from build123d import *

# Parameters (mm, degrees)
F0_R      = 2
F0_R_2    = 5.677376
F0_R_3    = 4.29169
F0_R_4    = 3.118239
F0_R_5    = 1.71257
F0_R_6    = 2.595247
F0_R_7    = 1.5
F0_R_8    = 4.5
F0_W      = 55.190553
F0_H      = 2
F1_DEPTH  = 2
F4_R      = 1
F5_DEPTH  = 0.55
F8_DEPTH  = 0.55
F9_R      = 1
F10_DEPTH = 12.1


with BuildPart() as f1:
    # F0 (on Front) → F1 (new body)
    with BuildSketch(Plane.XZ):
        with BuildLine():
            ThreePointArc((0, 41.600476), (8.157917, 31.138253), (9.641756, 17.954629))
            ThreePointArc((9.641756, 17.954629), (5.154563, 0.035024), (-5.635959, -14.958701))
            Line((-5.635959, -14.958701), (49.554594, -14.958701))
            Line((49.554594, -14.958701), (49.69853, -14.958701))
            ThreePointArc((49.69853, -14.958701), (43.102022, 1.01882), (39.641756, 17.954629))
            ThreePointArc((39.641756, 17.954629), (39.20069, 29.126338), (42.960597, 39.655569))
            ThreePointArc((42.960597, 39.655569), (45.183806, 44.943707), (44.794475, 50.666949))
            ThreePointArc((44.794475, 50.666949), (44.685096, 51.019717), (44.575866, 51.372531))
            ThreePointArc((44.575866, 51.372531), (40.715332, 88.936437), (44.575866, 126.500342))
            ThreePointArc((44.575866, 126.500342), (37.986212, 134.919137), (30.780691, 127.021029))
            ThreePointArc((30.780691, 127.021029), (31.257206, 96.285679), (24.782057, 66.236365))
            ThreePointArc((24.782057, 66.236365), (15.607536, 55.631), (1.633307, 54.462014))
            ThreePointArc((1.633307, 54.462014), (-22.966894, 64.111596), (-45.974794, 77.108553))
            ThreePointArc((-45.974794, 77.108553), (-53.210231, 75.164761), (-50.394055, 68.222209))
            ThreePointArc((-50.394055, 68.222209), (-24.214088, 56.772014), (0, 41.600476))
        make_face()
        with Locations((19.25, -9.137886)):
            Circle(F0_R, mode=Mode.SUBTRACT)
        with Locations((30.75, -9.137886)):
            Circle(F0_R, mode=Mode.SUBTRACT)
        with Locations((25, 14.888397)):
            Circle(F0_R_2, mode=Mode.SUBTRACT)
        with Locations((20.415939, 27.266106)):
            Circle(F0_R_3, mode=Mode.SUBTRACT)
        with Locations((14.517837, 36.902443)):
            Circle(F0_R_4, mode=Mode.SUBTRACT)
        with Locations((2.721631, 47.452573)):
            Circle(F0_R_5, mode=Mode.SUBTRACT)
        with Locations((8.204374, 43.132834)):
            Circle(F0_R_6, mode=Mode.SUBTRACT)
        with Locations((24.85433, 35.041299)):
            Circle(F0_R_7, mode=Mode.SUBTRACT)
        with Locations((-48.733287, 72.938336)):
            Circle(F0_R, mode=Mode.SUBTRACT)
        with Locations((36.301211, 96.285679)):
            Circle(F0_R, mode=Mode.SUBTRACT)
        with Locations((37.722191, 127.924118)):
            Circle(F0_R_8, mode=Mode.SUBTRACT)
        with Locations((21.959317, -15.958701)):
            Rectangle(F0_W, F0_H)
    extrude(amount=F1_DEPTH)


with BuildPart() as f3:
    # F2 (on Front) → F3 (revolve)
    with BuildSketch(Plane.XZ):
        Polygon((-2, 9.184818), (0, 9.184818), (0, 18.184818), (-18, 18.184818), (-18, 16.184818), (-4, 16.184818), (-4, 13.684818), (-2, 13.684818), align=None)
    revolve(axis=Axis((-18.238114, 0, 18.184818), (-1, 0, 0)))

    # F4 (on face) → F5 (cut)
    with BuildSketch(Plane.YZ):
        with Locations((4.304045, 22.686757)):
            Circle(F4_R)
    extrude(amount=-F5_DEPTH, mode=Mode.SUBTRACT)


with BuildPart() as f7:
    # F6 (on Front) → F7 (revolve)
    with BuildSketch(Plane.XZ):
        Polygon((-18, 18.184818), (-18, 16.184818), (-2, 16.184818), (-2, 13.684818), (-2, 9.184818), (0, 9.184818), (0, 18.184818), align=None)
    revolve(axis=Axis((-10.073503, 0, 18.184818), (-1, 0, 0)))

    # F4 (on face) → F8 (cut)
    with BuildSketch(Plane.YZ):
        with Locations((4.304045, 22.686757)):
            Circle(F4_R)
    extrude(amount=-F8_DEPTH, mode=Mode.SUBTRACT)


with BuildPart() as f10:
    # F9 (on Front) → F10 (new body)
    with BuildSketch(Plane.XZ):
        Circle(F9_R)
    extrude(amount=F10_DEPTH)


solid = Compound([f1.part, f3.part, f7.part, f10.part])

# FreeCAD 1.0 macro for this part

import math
import FreeCAD as App
import Part
import Sketcher
from FreeCAD import Vector

doc = App.newDocument("Part")
params = doc.addObject("Spreadsheet::Sheet", "Params")
for row, (alias, value) in enumerate([
    ("sketch1_diameter", "4 mm"),
    ("sketch1_diameter2", "4 mm"),
    ("sketch1_diameter3", "3 mm"),
    ("sketch1_diameter4", "4 mm"),
    ("sketch1_diameter5", "4 mm"),
    ("pad1_length", "2 mm"),
    ("sketch2_width", "2 mm"),
    ("sketch2_width2", "18 mm"),
    ("sketch2_height", "9 mm"),
    ("sketch2_height2", "2.5 mm"),
    ("revolution_angle", "360 deg"),
    ("sketch3_diameter", "2 mm"),
    ("pocket1_length", "0.55 mm"),
    ("sketch4_width", "16 mm"),
    ("sketch4_width2", "2 mm"),
    ("sketch4_height", "7 mm"),
    ("revolution2_angle", "360 deg"),
    ("sketch5_diameter", "2 mm"),
    ("pocket2_length", "0.55 mm"),
    ("sketch6_diameter", "2 mm"),
    ("pad2_length", "12.1 mm"),
], start=1):
    params.set(f"A{row}", alias)
    params.set(f"B{row}", "=" + value)
    params.setAlias(f"B{row}", alias)

body = doc.addObject("PartDesign::Body", "Body")

sketch1 = body.newObject("Sketcher::SketchObject", "Sketch")
sketch1.AttachmentSupport = (doc.getObject("XZ_Plane"), [""])
sketch1.MapMode = "FlatFace"
sketch1.addGeometry(Part.ArcOfCircle(Part.Circle(Vector(-14.454547, 21.917866, 0), Vector(0, 0, 1), 24.420055), math.radians(-9.340094), math.radians(53.707124)), False)
sketch1.addGeometry(Part.ArcOfCircle(Part.Circle(Vector(-39.386158, 20.709943, 0), Vector(0, 0, 1), 49.105276), math.radians(-46.583012), math.radians(-3.216575)), False)
sketch1.addGeometry(Part.LineSegment(Vector(-5.63596, -14.958701, 0), Vector(-5.635959, -14.958701, 0)), False)
sketch1.addGeometry(Part.LineSegment(Vector(-5.63596, -14.958701, 0), Vector(-5.63596, -16.958701, 0)), False)
sketch1.addGeometry(Part.LineSegment(Vector(-5.63596, -16.958701, 0), Vector(49.554594, -16.958701, 0)), False)
sketch1.addGeometry(Part.LineSegment(Vector(49.554594, -16.958701, 0), Vector(49.554594, -14.958701, 0)), False)
sketch1.addGeometry(Part.LineSegment(Vector(49.554594, -14.958701, 0), Vector(49.69853, -14.958701, 0)), False)
sketch1.addGeometry(Part.ArcOfCircle(Part.Circle(Vector(130.238425, 27.643628, 0), Vector(0, 0, 1), 91.113298), math.radians(-173.895618), math.radians(-152.12298)), False)
sketch1.addGeometry(Part.ArcOfCircle(Part.Circle(Vector(68.276035, 24.679689, 0), Vector(0, 0, 1), 29.413405), math.radians(149.392671), math.radians(193.216975)), False)
sketch1.addGeometry(Part.ArcOfCircle(Part.Circle(Vector(32.927932, 46.984849, 0), Vector(0, 0, 1), 12.424681), math.radians(-36.149684), math.radians(17.23873)), False)
sketch1.addGeometry(Part.ArcOfCircle(Part.Circle(Vector(880.257704, 309.903436, 0), Vector(0, 0, 1), 874.758459), math.radians(-162.809751), math.radians(-162.761368)), False)
sketch1.addGeometry(Part.ArcOfCircle(Part.Circle(Vector(225.398425, 88.936436, 0), Vector(0, 0, 1), 184.683093), math.radians(168.264349), math.radians(191.735651)), False)
sketch1.addGeometry(Part.ArcOfCircle(Part.Circle(Vector(37.722191, 127.924118, 0), Vector(0, 0, 1), 7), math.radians(-11.735654), math.radians(187.412546)), False)
sketch1.addGeometry(Part.ArcOfCircle(Part.Circle(Vector(-103.354487, 109.570054, 0), Vector(0, 0, 1), 135.265599), math.radians(-18.684698), math.radians(7.412542)), False)
sketch1.addGeometry(Part.ArcOfCircle(Part.Circle(Vector(7.186579, 72.18687, 0), Vector(0, 0, 1), 18.574428), math.radians(-107.395993), math.radians(-18.684703)), False)
sketch1.addGeometry(Part.ArcOfCircle(Part.Circle(Vector(57.953889, 234.225221, 0), Vector(0, 0, 1), 188.379453), math.radians(-123.483623), math.radians(-107.395997)), False)
sketch1.addGeometry(Part.ArcOfCircle(Part.Circle(Vector(-48.733287, 72.938335, 0), Vector(0, 0, 1), 5), math.radians(56.516377), math.radians(250.600457)), False)
sketch1.addGeometry(Part.ArcOfCircle(Part.Circle(Vector(-114.832767, -114.76613, 0), Vector(0, 0, 1), 194.002783), math.radians(53.707123), math.radians(70.600461)), False)
sketch1.addGeometry(Part.Circle(Vector(19.25, -9.137886, 0), Vector(0, 0, 1), 2), False)
sketch1.addGeometry(Part.Circle(Vector(30.75, -9.137886, 0), Vector(0, 0, 1), 2), False)
sketch1.addGeometry(Part.Circle(Vector(25, 14.888397, 0), Vector(0, 0, 1), 5.677376), False)
sketch1.addGeometry(Part.Circle(Vector(14.517837, 36.902443, 0), Vector(0, 0, 1), 3.118239), False)
sketch1.addGeometry(Part.Circle(Vector(2.721631, 47.452573, 0), Vector(0, 0, 1), 1.71257), False)
sketch1.addGeometry(Part.Circle(Vector(8.204374, 43.132834, 0), Vector(0, 0, 1), 2.595247), False)
sketch1.addGeometry(Part.Circle(Vector(20.415939, 27.266106, 0), Vector(0, 0, 1), 4.29169), False)
sketch1.addGeometry(Part.Circle(Vector(24.85433, 35.041299, 0), Vector(0, 0, 1), 1.5), False)
sketch1.addGeometry(Part.Circle(Vector(-48.733287, 72.938336, 0), Vector(0, 0, 1), 2), False)
sketch1.addGeometry(Part.Circle(Vector(36.301211, 96.285679, 0), Vector(0, 0, 1), 2), False)
sketch1.addGeometry(Part.Circle(Vector(37.722191, 127.924118, 0), Vector(0, 0, 1), 4.5), False)
sketch1.addConstraint(Sketcher.Constraint("Coincident", 0, 1, 1, 2))
sketch1.addConstraint(Sketcher.Constraint("Coincident", 1, 1, 2, 1))
sketch1.addConstraint(Sketcher.Constraint("Coincident", 2, 2, 3, 1))
sketch1.addConstraint(Sketcher.Constraint("Coincident", 3, 2, 4, 1))
sketch1.addConstraint(Sketcher.Constraint("Coincident", 4, 2, 5, 1))
sketch1.addConstraint(Sketcher.Constraint("Coincident", 5, 2, 6, 1))
sketch1.addConstraint(Sketcher.Constraint("Coincident", 6, 2, 7, 2))
sketch1.addConstraint(Sketcher.Constraint("Coincident", 7, 1, 8, 2))
sketch1.addConstraint(Sketcher.Constraint("Coincident", 8, 1, 9, 1))
sketch1.addConstraint(Sketcher.Constraint("Coincident", 9, 2, 10, 2))
sketch1.addConstraint(Sketcher.Constraint("Coincident", 10, 1, 11, 2))
sketch1.addConstraint(Sketcher.Constraint("Coincident", 11, 1, 12, 1))
sketch1.addConstraint(Sketcher.Constraint("Coincident", 12, 2, 13, 2))
sketch1.addConstraint(Sketcher.Constraint("Coincident", 13, 1, 14, 2))
sketch1.addConstraint(Sketcher.Constraint("Coincident", 14, 1, 15, 2))
sketch1.addConstraint(Sketcher.Constraint("Coincident", 15, 1, 16, 1))
sketch1.addConstraint(Sketcher.Constraint("Coincident", 16, 2, 17, 2))
sketch1.addConstraint(Sketcher.Constraint("Coincident", 17, 1, 0, 2))
sketch1.addConstraint(Sketcher.Constraint("Horizontal", 2))
sketch1.addConstraint(Sketcher.Constraint("Vertical", 3))
sketch1.addConstraint(Sketcher.Constraint("Horizontal", 4))
sketch1.addConstraint(Sketcher.Constraint("Vertical", 5))
sketch1.addConstraint(Sketcher.Constraint("Horizontal", 6))
sketch1.addConstraint(Sketcher.Constraint("Coincident", 26, 3, 16, 3))
sketch1.addConstraint(Sketcher.Constraint("Coincident", 28, 3, 12, 3))
sketch1.addConstraint(Sketcher.Constraint("PointOnObject", 17, 1, -2))
sketch1.addConstraint(Sketcher.Constraint("Diameter", 18, 4.0))
sketch1.addConstraint(Sketcher.Constraint("Diameter", 19, 4.0))
sketch1.addConstraint(Sketcher.Constraint("Diameter", 25, 3.0))
sketch1.addConstraint(Sketcher.Constraint("Diameter", 26, 4.0))
sketch1.addConstraint(Sketcher.Constraint("Diameter", 27, 4.0))
sketch1.addConstraint(Sketcher.Constraint("Diameter", 28, 9.0))
sketch1.addConstraint(Sketcher.Constraint("Radius", 12, 7.0))
sketch1.addConstraint(Sketcher.Constraint("Radius", 16, 5.0))
sketch1.addConstraint(Sketcher.Constraint("DistanceY", 3, 2, 3, 1, 2.0))
sketch1.addConstraint(Sketcher.Constraint("DistanceY", 5, 1, 5, 2, 2.0))
sketch1.addConstraint(Sketcher.Constraint("DistanceX", -1, 1, 20, 3, 25.0))
sketch1.addConstraint(Sketcher.Constraint("Radius", 7, 91.113298))
sketch1.addConstraint(Sketcher.Constraint("Radius", 13, 135.265599))
sketch1.addConstraint(Sketcher.Constraint("DistanceX", 18, 3, 19, 3, 11.5))
sketch1.addConstraint(Sketcher.Constraint("Diameter", 22, 3.42514))
sketch1.addConstraint(Sketcher.Constraint("Diameter", 24, 8.58338))
sketch1.addConstraint(Sketcher.Constraint("DistanceX", -1, 1, 18, 3, 19.25))
sketch1.addConstraint(Sketcher.Constraint("Radius", 9, 12.424681))
sketch1.addConstraint(Sketcher.Constraint("Radius", 10, 874.758459))
sketch1.addConstraint(Sketcher.Constraint("DistanceX", 7, 3, 11, 3, 95.16))
sketch1.addConstraint(Sketcher.Constraint("Diameter", 20, 11.354752))
sketch1.addConstraint(Sketcher.Constraint("Diameter", 21, 6.236478))
sketch1.addConstraint(Sketcher.Constraint("Diameter", 23, 5.190494))
sketch1.addConstraint(Sketcher.Constraint("Radius", 0, 24.420055))
sketch1.addConstraint(Sketcher.Constraint("Radius", 1, 49.105276))
sketch1.addConstraint(Sketcher.Constraint("Radius", 8, 29.413405))
sketch1.addConstraint(Sketcher.Constraint("Radius", 11, 184.683093))
sketch1.addConstraint(Sketcher.Constraint("Radius", 14, 18.574428))
sketch1.addConstraint(Sketcher.Constraint("Radius", 15, 188.379453))
sketch1.addConstraint(Sketcher.Constraint("Radius", 17, 194.002783))
sketch1.addConstraint(Sketcher.Constraint("DistanceY", 17, 3, 14, 3, 186.953001))
sketch1.addConstraint(Sketcher.Constraint("DistanceY", -1, 1, 25, 3, 35.041299))
sketch1.addConstraint(Sketcher.Constraint("DistanceY", 1, 1, -1, 1, 14.958701))
sketch1.addConstraint(Sketcher.Constraint("DistanceX", 13, 3, 16, 3, 54.6212))
sketch1.addConstraint(Sketcher.Constraint("DistanceX", 17, 3, 9, 3, 147.760699))
sketch1.addConstraint(Sketcher.Constraint("DistanceX", 22, 3, 9, 3, 30.206301))
sketch1.addConstraint(Sketcher.Constraint("DistanceY", 4, 2, 20, 3, 31.847098))
sketch1.addConstraint(Sketcher.Constraint("DistanceY", 9, 3, 9, 2, 3.6821))
sketch1.addConstraint(Sketcher.Constraint("DistanceX", 12, 2, 28, 3, 6.9415))
sketch1.addConstraint(Sketcher.Constraint("DistanceX", 15, 1, 14, 1, 47.608101))
sketch1.addConstraint(Sketcher.Constraint("DistanceX", 4, 1, 4, 2, 55.190553))
sketch1.addConstraint(Sketcher.Constraint("DistanceX", 6, 1, 6, 2, 0.143936))
sketch1.addConstraint(Sketcher.Constraint("DistanceY", -1, 1, 7, 3, 27.643628))
sketch1.addConstraint(Sketcher.Constraint("DistanceY", -1, 1, 8, 3, 24.679689))
sketch1.addConstraint(Sketcher.Constraint("DistanceY", -1, 1, 9, 3, 46.984849))
sketch1.addConstraint(Sketcher.Constraint("DistanceX", -1, 1, 12, 3, 37.722191))
sketch1.addConstraint(Sketcher.Constraint("DistanceY", -1, 1, 12, 3, 127.924118))
sketch1.addConstraint(Sketcher.Constraint("DistanceX", -1, 1, 14, 3, 7.186579))
sketch1.addConstraint(Sketcher.Constraint("DistanceY", -1, 1, 14, 3, 72.18687))
sketch1.addConstraint(Sketcher.Constraint("DistanceX", -1, 1, 15, 3, 57.953889))
sketch1.addConstraint(Sketcher.Constraint("DistanceX", -1, 1, 24, 3, 20.415939))
sketch1.addConstraint(Sketcher.Constraint("DistanceX", -1, 1, 25, 3, 24.85433))
sketch1.addConstraint(Sketcher.Constraint("DistanceX", -1, 1, 27, 3, 36.301211))
sketch1.addConstraint(Sketcher.Constraint("DistanceY", -1, 1, 27, 3, 96.285679))
sketch1.addConstraint(Sketcher.Constraint("DistanceY", -1, 1, 0, 1, 17.954629))
sketch1.addConstraint(Sketcher.Constraint("DistanceX", 1, 1, -1, 1, 5.635959))
sketch1.addConstraint(Sketcher.Constraint("DistanceX", 2, 2, -1, 1, 5.635959))
sketch1.addConstraint(Sketcher.Constraint("DistanceY", -1, 1, 7, 1, 17.954629))
sketch1.addConstraint(Sketcher.Constraint("DistanceY", -1, 1, 16, 2, 68.222209))
sketch1.addConstraint(Sketcher.Constraint("DistanceX", 1, 3, 0, 3, 24.931611))
sketch1.addConstraint(Sketcher.Constraint("DistanceX", 7, 3, 10, 3, 750.019279))
sketch1.addConstraint(Sketcher.Constraint("DistanceY", 18, 3, 0, 3, 31.055752))
sketch1.addConstraint(Sketcher.Constraint("DistanceY", 19, 3, 0, 3, 31.055752))
sketch1.addConstraint(Sketcher.Constraint("DistanceX", 14, 3, 21, 3, 7.331258))
sketch1.addConstraint(Sketcher.Constraint("DistanceY", 18, 3, 21, 3, 46.040329))
sketch1.addConstraint(Sketcher.Constraint("DistanceY", 21, 3, 22, 3, 10.55013))
sketch1.addConstraint(Sketcher.Constraint("DistanceY", 23, 3, 22, 3, 4.319739))
sketch1.addConstraint(Sketcher.Constraint("DistanceX", 23, 3, 9, 3, 24.723558))
sketch1.addConstraint(Sketcher.Constraint("DistanceY", 20, 3, 24, 3, 12.377709))
sketch1.addConstraint(Sketcher.Constraint("DistanceY", 14, 3, 11, 1, 54.313472))
sketch1.addConstraint(Sketcher.Constraint("DistanceX", 14, 3, 13, 1, 17.595478))
sketch1.addConstraint(Sketcher.Constraint("DistanceY", 22, 3, 14, 1, 7.009441))
sketch1.setExpression("Constraints[26]", "Params.sketch1_diameter")
sketch1.setExpression("Constraints[27]", "Params.sketch1_diameter2")
sketch1.setExpression("Constraints[28]", "Params.sketch1_diameter3")
sketch1.setExpression("Constraints[29]", "Params.sketch1_diameter4")
sketch1.setExpression("Constraints[30]", "Params.sketch1_diameter5")
pad1 = body.newObject("PartDesign::Pad", "Pad")
pad1.Profile = sketch1
pad1.setExpression("Length", "Params.pad1_length")
body2 = doc.addObject("PartDesign::Body", "Body001")

sketch2 = body2.newObject("Sketcher::SketchObject", "Sketch001")
sketch2.AttachmentSupport = (doc.getObject("XZ_Plane001"), [""])
sketch2.MapMode = "FlatFace"
sketch2.addGeometry(Part.LineSegment(Vector(-2, 9.2, 0), Vector(0, 9.2, 0)), False)
sketch2.addGeometry(Part.LineSegment(Vector(0, 9.2, 0), Vector(0, 18.2, 0)), False)
sketch2.addGeometry(Part.LineSegment(Vector(0, 18.2, 0), Vector(-18, 18.2, 0)), False)
sketch2.addGeometry(Part.LineSegment(Vector(-18, 18.2, 0), Vector(-18, 16.2, 0)), False)
sketch2.addGeometry(Part.LineSegment(Vector(-18, 16.2, 0), Vector(-4, 16.2, 0)), False)
sketch2.addGeometry(Part.LineSegment(Vector(-4, 16.2, 0), Vector(-4, 13.7, 0)), False)
sketch2.addGeometry(Part.LineSegment(Vector(-4, 13.7, 0), Vector(-2, 13.7, 0)), False)
sketch2.addGeometry(Part.LineSegment(Vector(-2, 13.7, 0), Vector(-2, 9.2, 0)), False)
sketch2.addGeometry(Part.LineSegment(Vector(0, 18.2, 0), Vector(-18, 18.2, 0)), True)
sketch2.addConstraint(Sketcher.Constraint("Coincident", 0, 2, 1, 1))
sketch2.addConstraint(Sketcher.Constraint("Coincident", 1, 2, 2, 1))
sketch2.addConstraint(Sketcher.Constraint("Coincident", 2, 2, 3, 1))
sketch2.addConstraint(Sketcher.Constraint("Coincident", 3, 2, 4, 1))
sketch2.addConstraint(Sketcher.Constraint("Coincident", 4, 2, 5, 1))
sketch2.addConstraint(Sketcher.Constraint("Coincident", 5, 2, 6, 1))
sketch2.addConstraint(Sketcher.Constraint("Coincident", 6, 2, 7, 1))
sketch2.addConstraint(Sketcher.Constraint("Coincident", 7, 2, 0, 1))
sketch2.addConstraint(Sketcher.Constraint("Horizontal", 0))
sketch2.addConstraint(Sketcher.Constraint("Vertical", 1))
sketch2.addConstraint(Sketcher.Constraint("Horizontal", 2))
sketch2.addConstraint(Sketcher.Constraint("Vertical", 3))
sketch2.addConstraint(Sketcher.Constraint("Horizontal", 4))
sketch2.addConstraint(Sketcher.Constraint("Vertical", 5))
sketch2.addConstraint(Sketcher.Constraint("Horizontal", 6))
sketch2.addConstraint(Sketcher.Constraint("Vertical", 7))
sketch2.addConstraint(Sketcher.Constraint("Horizontal", 8))
sketch2.addConstraint(Sketcher.Constraint("Coincident", 8, 1, 1, 2))
sketch2.addConstraint(Sketcher.Constraint("PointOnObject", 0, 2, -2))
sketch2.addConstraint(Sketcher.Constraint("Vertical", 3, 2, 8, 2))
sketch2.addConstraint(Sketcher.Constraint("Equal", 0, 6))
sketch2.addConstraint(Sketcher.Constraint("Equal", 6, 3))
sketch2.addConstraint(Sketcher.Constraint("DistanceX", 0, 1, 0, 2, 2.0))
sketch2.addConstraint(Sketcher.Constraint("DistanceX", 2, 2, 2, 1, 18.0))
sketch2.addConstraint(Sketcher.Constraint("DistanceY", 1, 1, 1, 2, 9.0))
sketch2.addConstraint(Sketcher.Constraint("DistanceY", 5, 2, 5, 1, 2.5))
sketch2.addConstraint(Sketcher.Constraint("DistanceY", -1, 1, 1, 2, 18.184818))
sketch2.setExpression("Constraints[22]", "Params.sketch2_width")
sketch2.setExpression("Constraints[23]", "Params.sketch2_width2")
sketch2.setExpression("Constraints[24]", "Params.sketch2_height")
sketch2.setExpression("Constraints[25]", "Params.sketch2_height2")
revolution = body2.newObject("PartDesign::Revolution", "Revolution")
revolution.Profile = sketch2
revolution.ReferenceAxis = (sketch2, ["Axis0"])
revolution.setExpression("Angle", "Params.revolution_angle")

sketch3 = body2.newObject("Sketcher::SketchObject", "Sketch002")
sketch3.AttachmentSupport = (doc.getObject("YZ_Plane001"), [""])
sketch3.MapMode = "FlatFace"
sketch3.addGeometry(Part.Circle(Vector(4.3, 22.7, 0), Vector(0, 0, 1), 1), False)
sketch3.addConstraint(Sketcher.Constraint("Diameter", 0, 2.0))
sketch3.addConstraint(Sketcher.Constraint("DistanceX", -1, 1, 0, 3, 4.304045))
sketch3.addConstraint(Sketcher.Constraint("DistanceY", -1, 1, 0, 3, 22.686757))
sketch3.setExpression("Constraints[0]", "Params.sketch3_diameter")
pocket1 = body2.newObject("PartDesign::Pocket", "Pocket")
pocket1.Profile = sketch3
pocket1.setExpression("Length", "Params.pocket1_length")
body3 = doc.addObject("PartDesign::Body", "Body002")

sketch4 = body3.newObject("Sketcher::SketchObject", "Sketch003")
sketch4.AttachmentSupport = (doc.getObject("XZ_Plane002"), [""])
sketch4.MapMode = "FlatFace"
sketch4.addGeometry(Part.LineSegment(Vector(-18, 18.2, 0), Vector(-18, 16.2, 0)), False)
sketch4.addGeometry(Part.LineSegment(Vector(-18, 16.2, 0), Vector(-2, 16.2, 0)), False)
sketch4.addGeometry(Part.LineSegment(Vector(-2, 16.2, 0), Vector(-2, 9.2, 0)), False)
sketch4.addGeometry(Part.LineSegment(Vector(-2, 9.2, 0), Vector(0, 9.2, 0)), False)
sketch4.addGeometry(Part.LineSegment(Vector(0, 9.2, 0), Vector(0, 18.2, 0)), False)
sketch4.addGeometry(Part.LineSegment(Vector(0, 18.2, 0), Vector(-18, 18.2, 0)), False)
sketch4.addGeometry(Part.LineSegment(Vector(0, 18.2, 0), Vector(-18, 18.2, 0)), True)
sketch4.addConstraint(Sketcher.Constraint("Coincident", 0, 2, 1, 1))
sketch4.addConstraint(Sketcher.Constraint("Coincident", 1, 2, 2, 1))
sketch4.addConstraint(Sketcher.Constraint("Coincident", 2, 2, 3, 1))
sketch4.addConstraint(Sketcher.Constraint("Coincident", 3, 2, 4, 1))
sketch4.addConstraint(Sketcher.Constraint("Coincident", 4, 2, 5, 1))
sketch4.addConstraint(Sketcher.Constraint("Coincident", 5, 2, 0, 1))
sketch4.addConstraint(Sketcher.Constraint("Vertical", 0))
sketch4.addConstraint(Sketcher.Constraint("Horizontal", 1))
sketch4.addConstraint(Sketcher.Constraint("Vertical", 2))
sketch4.addConstraint(Sketcher.Constraint("Horizontal", 3))
sketch4.addConstraint(Sketcher.Constraint("Vertical", 4))
sketch4.addConstraint(Sketcher.Constraint("Horizontal", 5))
sketch4.addConstraint(Sketcher.Constraint("Horizontal", 6))
sketch4.addConstraint(Sketcher.Constraint("Coincident", 6, 1, 4, 2))
sketch4.addConstraint(Sketcher.Constraint("PointOnObject", 3, 2, -2))
sketch4.addConstraint(Sketcher.Constraint("Vertical", 0, 2, 6, 2))
sketch4.addConstraint(Sketcher.Constraint("Equal", 3, 0))
sketch4.addConstraint(Sketcher.Constraint("DistanceX", 1, 1, 1, 2, 16.0))
sketch4.addConstraint(Sketcher.Constraint("DistanceX", 3, 1, 3, 2, 2.0))
sketch4.addConstraint(Sketcher.Constraint("DistanceY", 2, 2, 2, 1, 7.0))
sketch4.addConstraint(Sketcher.Constraint("DistanceY", -1, 1, 0, 2, 16.184818))
sketch4.setExpression("Constraints[17]", "Params.sketch4_width")
sketch4.setExpression("Constraints[18]", "Params.sketch4_width2")
sketch4.setExpression("Constraints[19]", "Params.sketch4_height")
revolution2 = body3.newObject("PartDesign::Revolution", "Revolution001")
revolution2.Profile = sketch4
revolution2.ReferenceAxis = (sketch4, ["Axis0"])
revolution2.setExpression("Angle", "Params.revolution2_angle")

sketch5 = body3.newObject("Sketcher::SketchObject", "Sketch004")
sketch5.AttachmentSupport = (doc.getObject("YZ_Plane002"), [""])
sketch5.MapMode = "FlatFace"
sketch5.addGeometry(Part.Circle(Vector(4.3, 22.7, 0), Vector(0, 0, 1), 1), False)
sketch5.addConstraint(Sketcher.Constraint("Diameter", 0, 2.0))
sketch5.addConstraint(Sketcher.Constraint("DistanceX", -1, 1, 0, 3, 4.304045))
sketch5.addConstraint(Sketcher.Constraint("DistanceY", -1, 1, 0, 3, 22.686757))
sketch5.setExpression("Constraints[0]", "Params.sketch5_diameter")
pocket2 = body3.newObject("PartDesign::Pocket", "Pocket001")
pocket2.Profile = sketch5
pocket2.setExpression("Length", "Params.pocket2_length")
body4 = doc.addObject("PartDesign::Body", "Body003")

sketch6 = body4.newObject("Sketcher::SketchObject", "Sketch005")
sketch6.AttachmentSupport = (doc.getObject("XZ_Plane003"), [""])
sketch6.MapMode = "FlatFace"
sketch6.addGeometry(Part.Circle(Vector(0, 0, 0), Vector(0, 0, 1), 1), False)
sketch6.addConstraint(Sketcher.Constraint("Coincident", 0, 3, -1, 1))
sketch6.addConstraint(Sketcher.Constraint("Diameter", 0, 2.0))
sketch6.setExpression("Constraints[1]", "Params.sketch6_diameter")
pad2 = body4.newObject("PartDesign::Pad", "Pad001")
pad2.Profile = sketch6
pad2.setExpression("Length", "Params.pad2_length")

doc.recompute()
